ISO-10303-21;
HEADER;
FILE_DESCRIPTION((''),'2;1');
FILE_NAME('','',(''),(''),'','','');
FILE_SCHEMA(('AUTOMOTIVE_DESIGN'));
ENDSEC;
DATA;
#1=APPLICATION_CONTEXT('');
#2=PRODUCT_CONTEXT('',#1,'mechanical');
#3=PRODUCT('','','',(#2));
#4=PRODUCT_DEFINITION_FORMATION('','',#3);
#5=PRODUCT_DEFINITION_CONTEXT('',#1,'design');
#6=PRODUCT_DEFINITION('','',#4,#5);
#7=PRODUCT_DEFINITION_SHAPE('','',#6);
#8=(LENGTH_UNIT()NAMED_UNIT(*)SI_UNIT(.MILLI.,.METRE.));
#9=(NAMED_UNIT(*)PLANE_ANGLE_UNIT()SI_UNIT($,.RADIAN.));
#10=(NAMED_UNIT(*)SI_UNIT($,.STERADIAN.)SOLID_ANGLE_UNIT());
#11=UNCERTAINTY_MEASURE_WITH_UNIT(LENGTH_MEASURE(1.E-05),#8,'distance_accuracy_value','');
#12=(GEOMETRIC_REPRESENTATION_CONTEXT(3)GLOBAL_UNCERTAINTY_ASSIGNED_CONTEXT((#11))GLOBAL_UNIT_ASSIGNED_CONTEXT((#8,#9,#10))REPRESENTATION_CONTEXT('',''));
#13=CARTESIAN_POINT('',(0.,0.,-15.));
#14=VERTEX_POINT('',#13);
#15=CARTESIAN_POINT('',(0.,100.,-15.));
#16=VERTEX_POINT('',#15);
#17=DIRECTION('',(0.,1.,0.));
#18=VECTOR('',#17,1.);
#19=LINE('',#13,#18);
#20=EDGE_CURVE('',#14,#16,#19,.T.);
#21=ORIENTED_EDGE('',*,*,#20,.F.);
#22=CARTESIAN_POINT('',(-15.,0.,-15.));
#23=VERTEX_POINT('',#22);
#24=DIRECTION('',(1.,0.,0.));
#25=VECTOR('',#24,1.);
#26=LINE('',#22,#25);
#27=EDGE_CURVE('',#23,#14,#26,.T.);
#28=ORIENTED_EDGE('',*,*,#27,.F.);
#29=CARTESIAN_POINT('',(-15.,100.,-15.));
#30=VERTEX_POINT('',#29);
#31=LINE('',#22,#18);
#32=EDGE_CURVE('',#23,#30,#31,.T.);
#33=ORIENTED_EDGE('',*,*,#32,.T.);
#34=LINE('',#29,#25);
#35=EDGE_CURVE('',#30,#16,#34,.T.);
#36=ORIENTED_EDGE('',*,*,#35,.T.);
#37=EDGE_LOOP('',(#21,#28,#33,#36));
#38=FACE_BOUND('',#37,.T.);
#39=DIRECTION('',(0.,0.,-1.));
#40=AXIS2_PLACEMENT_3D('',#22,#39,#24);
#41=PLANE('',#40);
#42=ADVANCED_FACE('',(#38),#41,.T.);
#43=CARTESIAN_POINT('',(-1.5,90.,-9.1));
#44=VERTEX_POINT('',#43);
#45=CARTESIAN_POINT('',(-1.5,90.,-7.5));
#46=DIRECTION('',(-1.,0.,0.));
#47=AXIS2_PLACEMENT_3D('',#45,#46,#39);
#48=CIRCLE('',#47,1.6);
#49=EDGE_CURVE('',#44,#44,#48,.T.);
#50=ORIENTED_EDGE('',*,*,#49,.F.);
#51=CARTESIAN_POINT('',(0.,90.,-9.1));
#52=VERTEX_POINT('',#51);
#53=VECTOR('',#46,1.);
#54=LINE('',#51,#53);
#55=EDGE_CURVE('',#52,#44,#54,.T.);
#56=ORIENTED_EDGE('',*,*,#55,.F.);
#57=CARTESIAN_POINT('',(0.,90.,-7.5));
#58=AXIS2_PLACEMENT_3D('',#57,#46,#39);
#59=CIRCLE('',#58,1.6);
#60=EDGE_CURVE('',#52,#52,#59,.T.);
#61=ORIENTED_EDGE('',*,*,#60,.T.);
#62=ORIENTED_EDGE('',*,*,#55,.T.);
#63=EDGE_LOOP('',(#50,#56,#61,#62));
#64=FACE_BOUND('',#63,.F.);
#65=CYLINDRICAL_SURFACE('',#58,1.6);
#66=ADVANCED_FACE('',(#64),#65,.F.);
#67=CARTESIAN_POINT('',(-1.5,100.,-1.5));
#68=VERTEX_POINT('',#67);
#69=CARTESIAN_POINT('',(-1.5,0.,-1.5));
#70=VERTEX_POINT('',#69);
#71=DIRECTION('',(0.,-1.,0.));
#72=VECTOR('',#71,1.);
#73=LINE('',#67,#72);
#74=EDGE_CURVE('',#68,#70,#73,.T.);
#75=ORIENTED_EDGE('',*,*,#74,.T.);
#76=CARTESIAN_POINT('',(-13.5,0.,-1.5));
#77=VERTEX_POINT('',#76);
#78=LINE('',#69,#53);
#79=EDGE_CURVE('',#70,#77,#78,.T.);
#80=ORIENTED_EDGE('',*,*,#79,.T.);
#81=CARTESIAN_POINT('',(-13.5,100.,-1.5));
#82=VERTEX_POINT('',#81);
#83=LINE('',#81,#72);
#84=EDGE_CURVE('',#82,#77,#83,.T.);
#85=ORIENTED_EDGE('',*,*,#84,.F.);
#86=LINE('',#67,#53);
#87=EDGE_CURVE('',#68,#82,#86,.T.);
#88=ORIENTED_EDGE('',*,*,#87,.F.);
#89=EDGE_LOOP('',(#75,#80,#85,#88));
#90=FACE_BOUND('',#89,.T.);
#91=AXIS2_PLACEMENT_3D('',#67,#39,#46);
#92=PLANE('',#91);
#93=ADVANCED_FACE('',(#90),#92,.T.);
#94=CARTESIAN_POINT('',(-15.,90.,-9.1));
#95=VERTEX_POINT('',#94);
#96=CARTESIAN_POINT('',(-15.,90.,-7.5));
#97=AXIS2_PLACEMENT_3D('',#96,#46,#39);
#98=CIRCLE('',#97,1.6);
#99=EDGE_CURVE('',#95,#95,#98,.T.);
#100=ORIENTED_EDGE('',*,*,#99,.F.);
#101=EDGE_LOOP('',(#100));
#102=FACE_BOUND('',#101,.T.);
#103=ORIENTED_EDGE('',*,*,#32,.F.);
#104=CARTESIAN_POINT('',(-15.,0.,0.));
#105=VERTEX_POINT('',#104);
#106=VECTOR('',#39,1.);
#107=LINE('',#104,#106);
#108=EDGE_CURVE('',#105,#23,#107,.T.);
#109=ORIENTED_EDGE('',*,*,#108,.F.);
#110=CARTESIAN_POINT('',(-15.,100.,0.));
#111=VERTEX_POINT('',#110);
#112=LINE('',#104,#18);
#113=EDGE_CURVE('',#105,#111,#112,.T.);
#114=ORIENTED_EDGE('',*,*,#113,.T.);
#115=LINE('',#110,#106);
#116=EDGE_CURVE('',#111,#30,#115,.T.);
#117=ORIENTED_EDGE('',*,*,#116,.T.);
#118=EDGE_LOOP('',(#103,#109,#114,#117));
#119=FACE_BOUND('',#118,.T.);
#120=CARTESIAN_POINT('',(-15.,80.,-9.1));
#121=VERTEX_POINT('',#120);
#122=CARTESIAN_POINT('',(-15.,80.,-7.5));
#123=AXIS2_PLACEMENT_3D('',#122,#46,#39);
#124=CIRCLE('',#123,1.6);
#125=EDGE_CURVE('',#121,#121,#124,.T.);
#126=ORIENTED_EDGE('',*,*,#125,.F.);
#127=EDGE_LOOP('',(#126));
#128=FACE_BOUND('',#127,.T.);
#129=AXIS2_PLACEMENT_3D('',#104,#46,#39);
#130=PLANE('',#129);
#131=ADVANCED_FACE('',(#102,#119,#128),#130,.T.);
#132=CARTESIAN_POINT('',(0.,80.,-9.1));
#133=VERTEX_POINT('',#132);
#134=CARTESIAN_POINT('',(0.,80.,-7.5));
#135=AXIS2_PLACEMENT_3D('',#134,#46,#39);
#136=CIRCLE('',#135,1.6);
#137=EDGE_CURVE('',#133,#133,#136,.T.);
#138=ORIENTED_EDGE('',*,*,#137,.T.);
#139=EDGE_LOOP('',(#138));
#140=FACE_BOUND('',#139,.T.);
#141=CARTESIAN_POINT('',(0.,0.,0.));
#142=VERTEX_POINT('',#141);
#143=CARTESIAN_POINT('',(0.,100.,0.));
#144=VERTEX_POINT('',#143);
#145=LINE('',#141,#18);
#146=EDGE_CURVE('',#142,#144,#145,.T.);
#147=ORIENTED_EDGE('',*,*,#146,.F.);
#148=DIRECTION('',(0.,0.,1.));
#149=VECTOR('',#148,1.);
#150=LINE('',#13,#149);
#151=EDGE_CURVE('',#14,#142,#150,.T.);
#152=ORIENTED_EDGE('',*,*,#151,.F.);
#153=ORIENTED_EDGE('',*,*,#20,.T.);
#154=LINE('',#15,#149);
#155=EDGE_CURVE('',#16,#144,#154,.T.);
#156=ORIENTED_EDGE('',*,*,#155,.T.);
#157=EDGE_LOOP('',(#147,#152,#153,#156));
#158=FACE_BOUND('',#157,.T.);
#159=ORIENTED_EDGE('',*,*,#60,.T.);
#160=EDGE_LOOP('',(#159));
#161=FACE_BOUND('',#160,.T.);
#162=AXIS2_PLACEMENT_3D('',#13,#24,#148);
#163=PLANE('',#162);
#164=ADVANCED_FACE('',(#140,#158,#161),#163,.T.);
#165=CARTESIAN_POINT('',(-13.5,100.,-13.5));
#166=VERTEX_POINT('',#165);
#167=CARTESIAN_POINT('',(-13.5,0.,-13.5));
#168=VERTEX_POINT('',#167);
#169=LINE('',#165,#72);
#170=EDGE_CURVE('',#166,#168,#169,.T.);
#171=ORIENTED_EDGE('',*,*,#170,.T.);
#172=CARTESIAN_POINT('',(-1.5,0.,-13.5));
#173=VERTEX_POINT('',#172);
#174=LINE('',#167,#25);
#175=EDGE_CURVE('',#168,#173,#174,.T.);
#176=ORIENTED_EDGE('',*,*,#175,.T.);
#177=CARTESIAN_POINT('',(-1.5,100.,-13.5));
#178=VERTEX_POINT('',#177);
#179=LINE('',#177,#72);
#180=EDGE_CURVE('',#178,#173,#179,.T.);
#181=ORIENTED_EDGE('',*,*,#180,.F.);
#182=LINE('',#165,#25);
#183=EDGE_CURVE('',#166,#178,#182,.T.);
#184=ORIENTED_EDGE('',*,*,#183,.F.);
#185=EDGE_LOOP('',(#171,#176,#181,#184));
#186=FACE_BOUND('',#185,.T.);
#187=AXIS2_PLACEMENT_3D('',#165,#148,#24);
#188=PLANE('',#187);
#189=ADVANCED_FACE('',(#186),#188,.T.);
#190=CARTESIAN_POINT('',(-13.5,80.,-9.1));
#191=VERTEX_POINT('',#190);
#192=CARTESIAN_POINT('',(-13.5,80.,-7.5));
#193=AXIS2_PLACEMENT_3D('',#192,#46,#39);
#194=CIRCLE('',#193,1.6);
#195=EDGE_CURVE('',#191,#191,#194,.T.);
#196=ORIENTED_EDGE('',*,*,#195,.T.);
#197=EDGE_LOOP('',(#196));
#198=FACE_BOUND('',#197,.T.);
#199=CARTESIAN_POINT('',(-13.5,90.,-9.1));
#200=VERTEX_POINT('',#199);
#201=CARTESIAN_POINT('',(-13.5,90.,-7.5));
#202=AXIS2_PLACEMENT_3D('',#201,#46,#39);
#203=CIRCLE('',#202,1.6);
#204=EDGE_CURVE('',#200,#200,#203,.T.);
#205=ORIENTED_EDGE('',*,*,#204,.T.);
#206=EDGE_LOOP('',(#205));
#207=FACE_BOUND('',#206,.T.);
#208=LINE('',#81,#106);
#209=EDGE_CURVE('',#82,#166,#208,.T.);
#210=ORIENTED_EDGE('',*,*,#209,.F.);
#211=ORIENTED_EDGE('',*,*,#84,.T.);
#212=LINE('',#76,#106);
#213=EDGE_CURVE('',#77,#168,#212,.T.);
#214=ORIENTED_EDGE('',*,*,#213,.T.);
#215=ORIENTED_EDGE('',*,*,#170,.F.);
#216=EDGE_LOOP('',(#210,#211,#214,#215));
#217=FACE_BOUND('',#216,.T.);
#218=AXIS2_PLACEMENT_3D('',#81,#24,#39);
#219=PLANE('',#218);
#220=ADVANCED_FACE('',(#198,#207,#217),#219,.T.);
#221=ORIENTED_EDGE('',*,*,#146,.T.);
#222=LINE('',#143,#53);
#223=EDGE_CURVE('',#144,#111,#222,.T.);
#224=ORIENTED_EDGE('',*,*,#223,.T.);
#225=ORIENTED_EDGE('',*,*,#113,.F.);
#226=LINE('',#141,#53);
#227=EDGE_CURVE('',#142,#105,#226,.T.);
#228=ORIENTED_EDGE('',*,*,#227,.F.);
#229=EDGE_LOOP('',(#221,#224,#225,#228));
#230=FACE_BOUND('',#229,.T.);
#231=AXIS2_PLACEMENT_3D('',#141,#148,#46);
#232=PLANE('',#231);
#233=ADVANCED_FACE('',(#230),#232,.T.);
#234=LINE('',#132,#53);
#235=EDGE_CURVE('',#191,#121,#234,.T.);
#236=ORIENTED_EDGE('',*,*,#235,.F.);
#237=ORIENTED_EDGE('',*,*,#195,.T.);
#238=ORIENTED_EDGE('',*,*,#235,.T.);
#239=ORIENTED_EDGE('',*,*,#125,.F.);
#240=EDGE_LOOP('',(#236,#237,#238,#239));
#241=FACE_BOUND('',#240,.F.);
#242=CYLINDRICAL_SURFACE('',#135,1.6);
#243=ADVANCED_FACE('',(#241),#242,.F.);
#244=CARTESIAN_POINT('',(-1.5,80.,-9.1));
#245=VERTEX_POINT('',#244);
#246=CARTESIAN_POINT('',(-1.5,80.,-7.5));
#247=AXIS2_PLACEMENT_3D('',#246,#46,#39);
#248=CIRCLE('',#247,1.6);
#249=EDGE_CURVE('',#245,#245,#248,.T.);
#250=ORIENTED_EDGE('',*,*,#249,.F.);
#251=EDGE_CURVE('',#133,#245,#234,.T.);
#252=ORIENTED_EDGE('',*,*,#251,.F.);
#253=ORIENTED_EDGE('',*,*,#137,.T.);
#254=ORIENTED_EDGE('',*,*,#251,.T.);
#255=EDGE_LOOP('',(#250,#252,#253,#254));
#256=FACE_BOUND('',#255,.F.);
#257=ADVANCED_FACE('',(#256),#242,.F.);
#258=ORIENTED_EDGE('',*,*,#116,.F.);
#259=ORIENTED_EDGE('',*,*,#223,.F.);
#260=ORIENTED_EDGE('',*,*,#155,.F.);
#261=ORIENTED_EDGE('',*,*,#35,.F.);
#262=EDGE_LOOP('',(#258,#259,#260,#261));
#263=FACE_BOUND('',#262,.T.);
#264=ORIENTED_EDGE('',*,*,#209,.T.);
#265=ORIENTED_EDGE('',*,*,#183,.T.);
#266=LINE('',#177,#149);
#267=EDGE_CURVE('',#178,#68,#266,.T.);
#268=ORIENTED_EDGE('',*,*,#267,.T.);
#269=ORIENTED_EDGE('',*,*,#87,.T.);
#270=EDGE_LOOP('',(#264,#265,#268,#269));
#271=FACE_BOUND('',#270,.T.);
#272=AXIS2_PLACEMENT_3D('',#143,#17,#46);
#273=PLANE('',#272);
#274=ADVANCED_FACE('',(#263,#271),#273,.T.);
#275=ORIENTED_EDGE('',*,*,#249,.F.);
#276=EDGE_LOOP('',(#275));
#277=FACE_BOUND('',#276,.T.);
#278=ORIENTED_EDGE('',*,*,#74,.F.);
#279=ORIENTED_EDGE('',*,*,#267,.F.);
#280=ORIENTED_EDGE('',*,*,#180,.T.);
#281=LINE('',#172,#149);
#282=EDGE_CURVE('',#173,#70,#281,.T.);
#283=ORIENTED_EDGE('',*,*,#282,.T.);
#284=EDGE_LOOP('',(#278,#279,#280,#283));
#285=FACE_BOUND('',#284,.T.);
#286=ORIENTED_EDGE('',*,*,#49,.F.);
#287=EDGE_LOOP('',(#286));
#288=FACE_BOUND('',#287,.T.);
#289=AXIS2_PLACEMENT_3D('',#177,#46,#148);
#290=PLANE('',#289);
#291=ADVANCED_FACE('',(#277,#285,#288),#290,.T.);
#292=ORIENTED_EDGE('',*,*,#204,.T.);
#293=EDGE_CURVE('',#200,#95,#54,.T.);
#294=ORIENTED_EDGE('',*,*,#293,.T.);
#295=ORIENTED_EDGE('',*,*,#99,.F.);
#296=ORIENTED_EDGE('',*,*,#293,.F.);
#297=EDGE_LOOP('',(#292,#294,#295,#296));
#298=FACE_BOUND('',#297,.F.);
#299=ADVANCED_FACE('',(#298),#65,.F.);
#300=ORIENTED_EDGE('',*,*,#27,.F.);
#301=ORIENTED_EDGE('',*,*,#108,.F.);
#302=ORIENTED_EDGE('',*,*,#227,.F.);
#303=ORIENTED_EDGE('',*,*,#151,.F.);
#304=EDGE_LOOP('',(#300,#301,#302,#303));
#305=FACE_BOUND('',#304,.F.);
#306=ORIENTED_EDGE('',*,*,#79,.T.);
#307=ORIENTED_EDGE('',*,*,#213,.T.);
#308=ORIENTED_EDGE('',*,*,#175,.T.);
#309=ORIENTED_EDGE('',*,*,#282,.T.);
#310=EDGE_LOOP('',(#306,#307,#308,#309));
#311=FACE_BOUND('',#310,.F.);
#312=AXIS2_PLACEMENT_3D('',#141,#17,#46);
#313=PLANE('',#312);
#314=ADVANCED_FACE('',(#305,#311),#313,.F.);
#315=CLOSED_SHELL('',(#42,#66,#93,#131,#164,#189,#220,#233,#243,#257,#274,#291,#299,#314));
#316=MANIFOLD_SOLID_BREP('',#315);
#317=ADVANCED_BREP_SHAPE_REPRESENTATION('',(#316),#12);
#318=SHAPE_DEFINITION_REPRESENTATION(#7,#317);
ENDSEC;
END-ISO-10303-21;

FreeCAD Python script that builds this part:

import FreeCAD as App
import Part
import Sketcher
from FreeCAD import Vector


def add_polygon(sketch, points):
    """Adds a closed chain of lines whose ends are joined by coincident constraints."""
    first, n = sketch.GeometryCount, len(points)
    for a, b in zip(points, points[1:] + points[:1]):
        sketch.addGeometry(Part.LineSegment(App.Vector(*a, 0), App.Vector(*b, 0)), False)
    for i in range(n):
        sketch.addConstraint(Sketcher.Constraint("Coincident", first + i, 2, first + (i + 1) % n, 1))

doc = App.newDocument("Part")
params = doc.addObject("Spreadsheet::Sheet", "Params")
for row, (alias, value) in enumerate([
    ("sketch1_width", "15 mm"),
    ("pad1_length", "100 mm"),
    ("sketch2_width", "12 mm"),
    ("pocket1_length", "100 mm"),
    ("sketch3_diameter", "3.2 mm"),
    ("hole_diameter", "3.2 mm"),
], start=1):
    params.set(f"A{row}", alias)
    params.set(f"B{row}", "=" + value)
    params.setAlias(f"B{row}", alias)

body = doc.addObject("PartDesign::Body", "Body")

sketch1 = body.newObject("Sketcher::SketchObject", "Sketch")
sketch1.AttachmentSupport = (doc.getObject("XZ_Plane"), [""])
sketch1.MapMode = "FlatFace"
add_polygon(sketch1, [(-15, 0), (0, 0), (0, -15), (-15, -15)])
sketch1.addConstraint(Sketcher.Constraint("Horizontal", 0))
sketch1.addConstraint(Sketcher.Constraint("Vertical", 1))
sketch1.addConstraint(Sketcher.Constraint("Horizontal", 2))
sketch1.addConstraint(Sketcher.Constraint("Vertical", 3))
sketch1.addConstraint(Sketcher.Constraint("Coincident", 0, 2, -1, 1))
sketch1.addConstraint(Sketcher.Constraint("Equal", 2, 1))
sketch1.addConstraint(Sketcher.Constraint("DistanceX", 0, 1, 0, 2, 15.0))
sketch1.setExpression("Constraints[10]", "Params.sketch1_width")
pad1 = body.newObject("PartDesign::Pad", "Pad")
pad1.Profile = sketch1
pad1.setExpression("Length", "Params.pad1_length")
pad1.Reversed = True

sketch2 = body.newObject("Sketcher::SketchObject", "Sketch001")
sketch2.AttachmentSupport = (doc.getObject("XZ_Plane"), [""])
sketch2.MapMode = "FlatFace"
sketch2.AttachmentOffset = App.Placement(Vector(0, 0, -100), App.Rotation())
add_polygon(sketch2, [(-2, -14), (-14, -14), (-14, -2), (-2, -2)])
sketch2.addConstraint(Sketcher.Constraint("Horizontal", 0))
sketch2.addConstraint(Sketcher.Constraint("Vertical", 1))
sketch2.addConstraint(Sketcher.Constraint("Horizontal", 2))
sketch2.addConstraint(Sketcher.Constraint("Vertical", 3))
sketch2.addConstraint(Sketcher.Constraint("Equal", 2, 1))
sketch2.addConstraint(Sketcher.Constraint("DistanceX", 0, 2, 0, 1, 12.0))
sketch2.addConstraint(Sketcher.Constraint("DistanceY", 1, 2, -1, 1, 1.5))
sketch2.addConstraint(Sketcher.Constraint("DistanceX", 2, 2, -1, 1, 1.5))
sketch2.setExpression("Constraints[9]", "Params.sketch2_width")
pocket1 = body.newObject("PartDesign::Pocket", "Pocket")
pocket1.Profile = sketch2
pocket1.setExpression("Length", "Params.pocket1_length")
pocket1.Reversed = True

sketch3 = body.newObject("Sketcher::SketchObject", "Sketch002")
sketch3.AttachmentSupport = (doc.getObject("YZ_Plane"), [""])
sketch3.MapMode = "FlatFace"
sketch3.addGeometry(Part.Circle(Vector(90, -7.5, 0), Vector(0, 0, 1), 1.6), False)
sketch3.addGeometry(Part.Circle(Vector(80, -7.5, 0), Vector(0, 0, 1), 1.6), False)
sketch3.addConstraint(Sketcher.Constraint("Equal", 0, 1))
sketch3.addConstraint(Sketcher.Constraint("Horizontal", 0, 3, 1, 3))
sketch3.addConstraint(Sketcher.Constraint("Diameter", 0, 3.2))
sketch3.addConstraint(Sketcher.Constraint("DistanceX", -1, 1, 0, 3, 90.0))
sketch3.addConstraint(Sketcher.Constraint("DistanceX", -1, 1, 1, 3, 80.0))
sketch3.addConstraint(Sketcher.Constraint("DistanceY", 0, 3, -1, 1, 7.5))
sketch3.setExpression("Constraints[2]", "Params.sketch3_diameter")
doc.recompute()
hole = body.newObject("PartDesign::Hole", "Hole")
hole.Profile = sketch3
hole.ThreadType = "None"
hole.setExpression("Diameter", "Params.hole_diameter")
hole.DepthType = "ThroughAll"

doc.recompute()
